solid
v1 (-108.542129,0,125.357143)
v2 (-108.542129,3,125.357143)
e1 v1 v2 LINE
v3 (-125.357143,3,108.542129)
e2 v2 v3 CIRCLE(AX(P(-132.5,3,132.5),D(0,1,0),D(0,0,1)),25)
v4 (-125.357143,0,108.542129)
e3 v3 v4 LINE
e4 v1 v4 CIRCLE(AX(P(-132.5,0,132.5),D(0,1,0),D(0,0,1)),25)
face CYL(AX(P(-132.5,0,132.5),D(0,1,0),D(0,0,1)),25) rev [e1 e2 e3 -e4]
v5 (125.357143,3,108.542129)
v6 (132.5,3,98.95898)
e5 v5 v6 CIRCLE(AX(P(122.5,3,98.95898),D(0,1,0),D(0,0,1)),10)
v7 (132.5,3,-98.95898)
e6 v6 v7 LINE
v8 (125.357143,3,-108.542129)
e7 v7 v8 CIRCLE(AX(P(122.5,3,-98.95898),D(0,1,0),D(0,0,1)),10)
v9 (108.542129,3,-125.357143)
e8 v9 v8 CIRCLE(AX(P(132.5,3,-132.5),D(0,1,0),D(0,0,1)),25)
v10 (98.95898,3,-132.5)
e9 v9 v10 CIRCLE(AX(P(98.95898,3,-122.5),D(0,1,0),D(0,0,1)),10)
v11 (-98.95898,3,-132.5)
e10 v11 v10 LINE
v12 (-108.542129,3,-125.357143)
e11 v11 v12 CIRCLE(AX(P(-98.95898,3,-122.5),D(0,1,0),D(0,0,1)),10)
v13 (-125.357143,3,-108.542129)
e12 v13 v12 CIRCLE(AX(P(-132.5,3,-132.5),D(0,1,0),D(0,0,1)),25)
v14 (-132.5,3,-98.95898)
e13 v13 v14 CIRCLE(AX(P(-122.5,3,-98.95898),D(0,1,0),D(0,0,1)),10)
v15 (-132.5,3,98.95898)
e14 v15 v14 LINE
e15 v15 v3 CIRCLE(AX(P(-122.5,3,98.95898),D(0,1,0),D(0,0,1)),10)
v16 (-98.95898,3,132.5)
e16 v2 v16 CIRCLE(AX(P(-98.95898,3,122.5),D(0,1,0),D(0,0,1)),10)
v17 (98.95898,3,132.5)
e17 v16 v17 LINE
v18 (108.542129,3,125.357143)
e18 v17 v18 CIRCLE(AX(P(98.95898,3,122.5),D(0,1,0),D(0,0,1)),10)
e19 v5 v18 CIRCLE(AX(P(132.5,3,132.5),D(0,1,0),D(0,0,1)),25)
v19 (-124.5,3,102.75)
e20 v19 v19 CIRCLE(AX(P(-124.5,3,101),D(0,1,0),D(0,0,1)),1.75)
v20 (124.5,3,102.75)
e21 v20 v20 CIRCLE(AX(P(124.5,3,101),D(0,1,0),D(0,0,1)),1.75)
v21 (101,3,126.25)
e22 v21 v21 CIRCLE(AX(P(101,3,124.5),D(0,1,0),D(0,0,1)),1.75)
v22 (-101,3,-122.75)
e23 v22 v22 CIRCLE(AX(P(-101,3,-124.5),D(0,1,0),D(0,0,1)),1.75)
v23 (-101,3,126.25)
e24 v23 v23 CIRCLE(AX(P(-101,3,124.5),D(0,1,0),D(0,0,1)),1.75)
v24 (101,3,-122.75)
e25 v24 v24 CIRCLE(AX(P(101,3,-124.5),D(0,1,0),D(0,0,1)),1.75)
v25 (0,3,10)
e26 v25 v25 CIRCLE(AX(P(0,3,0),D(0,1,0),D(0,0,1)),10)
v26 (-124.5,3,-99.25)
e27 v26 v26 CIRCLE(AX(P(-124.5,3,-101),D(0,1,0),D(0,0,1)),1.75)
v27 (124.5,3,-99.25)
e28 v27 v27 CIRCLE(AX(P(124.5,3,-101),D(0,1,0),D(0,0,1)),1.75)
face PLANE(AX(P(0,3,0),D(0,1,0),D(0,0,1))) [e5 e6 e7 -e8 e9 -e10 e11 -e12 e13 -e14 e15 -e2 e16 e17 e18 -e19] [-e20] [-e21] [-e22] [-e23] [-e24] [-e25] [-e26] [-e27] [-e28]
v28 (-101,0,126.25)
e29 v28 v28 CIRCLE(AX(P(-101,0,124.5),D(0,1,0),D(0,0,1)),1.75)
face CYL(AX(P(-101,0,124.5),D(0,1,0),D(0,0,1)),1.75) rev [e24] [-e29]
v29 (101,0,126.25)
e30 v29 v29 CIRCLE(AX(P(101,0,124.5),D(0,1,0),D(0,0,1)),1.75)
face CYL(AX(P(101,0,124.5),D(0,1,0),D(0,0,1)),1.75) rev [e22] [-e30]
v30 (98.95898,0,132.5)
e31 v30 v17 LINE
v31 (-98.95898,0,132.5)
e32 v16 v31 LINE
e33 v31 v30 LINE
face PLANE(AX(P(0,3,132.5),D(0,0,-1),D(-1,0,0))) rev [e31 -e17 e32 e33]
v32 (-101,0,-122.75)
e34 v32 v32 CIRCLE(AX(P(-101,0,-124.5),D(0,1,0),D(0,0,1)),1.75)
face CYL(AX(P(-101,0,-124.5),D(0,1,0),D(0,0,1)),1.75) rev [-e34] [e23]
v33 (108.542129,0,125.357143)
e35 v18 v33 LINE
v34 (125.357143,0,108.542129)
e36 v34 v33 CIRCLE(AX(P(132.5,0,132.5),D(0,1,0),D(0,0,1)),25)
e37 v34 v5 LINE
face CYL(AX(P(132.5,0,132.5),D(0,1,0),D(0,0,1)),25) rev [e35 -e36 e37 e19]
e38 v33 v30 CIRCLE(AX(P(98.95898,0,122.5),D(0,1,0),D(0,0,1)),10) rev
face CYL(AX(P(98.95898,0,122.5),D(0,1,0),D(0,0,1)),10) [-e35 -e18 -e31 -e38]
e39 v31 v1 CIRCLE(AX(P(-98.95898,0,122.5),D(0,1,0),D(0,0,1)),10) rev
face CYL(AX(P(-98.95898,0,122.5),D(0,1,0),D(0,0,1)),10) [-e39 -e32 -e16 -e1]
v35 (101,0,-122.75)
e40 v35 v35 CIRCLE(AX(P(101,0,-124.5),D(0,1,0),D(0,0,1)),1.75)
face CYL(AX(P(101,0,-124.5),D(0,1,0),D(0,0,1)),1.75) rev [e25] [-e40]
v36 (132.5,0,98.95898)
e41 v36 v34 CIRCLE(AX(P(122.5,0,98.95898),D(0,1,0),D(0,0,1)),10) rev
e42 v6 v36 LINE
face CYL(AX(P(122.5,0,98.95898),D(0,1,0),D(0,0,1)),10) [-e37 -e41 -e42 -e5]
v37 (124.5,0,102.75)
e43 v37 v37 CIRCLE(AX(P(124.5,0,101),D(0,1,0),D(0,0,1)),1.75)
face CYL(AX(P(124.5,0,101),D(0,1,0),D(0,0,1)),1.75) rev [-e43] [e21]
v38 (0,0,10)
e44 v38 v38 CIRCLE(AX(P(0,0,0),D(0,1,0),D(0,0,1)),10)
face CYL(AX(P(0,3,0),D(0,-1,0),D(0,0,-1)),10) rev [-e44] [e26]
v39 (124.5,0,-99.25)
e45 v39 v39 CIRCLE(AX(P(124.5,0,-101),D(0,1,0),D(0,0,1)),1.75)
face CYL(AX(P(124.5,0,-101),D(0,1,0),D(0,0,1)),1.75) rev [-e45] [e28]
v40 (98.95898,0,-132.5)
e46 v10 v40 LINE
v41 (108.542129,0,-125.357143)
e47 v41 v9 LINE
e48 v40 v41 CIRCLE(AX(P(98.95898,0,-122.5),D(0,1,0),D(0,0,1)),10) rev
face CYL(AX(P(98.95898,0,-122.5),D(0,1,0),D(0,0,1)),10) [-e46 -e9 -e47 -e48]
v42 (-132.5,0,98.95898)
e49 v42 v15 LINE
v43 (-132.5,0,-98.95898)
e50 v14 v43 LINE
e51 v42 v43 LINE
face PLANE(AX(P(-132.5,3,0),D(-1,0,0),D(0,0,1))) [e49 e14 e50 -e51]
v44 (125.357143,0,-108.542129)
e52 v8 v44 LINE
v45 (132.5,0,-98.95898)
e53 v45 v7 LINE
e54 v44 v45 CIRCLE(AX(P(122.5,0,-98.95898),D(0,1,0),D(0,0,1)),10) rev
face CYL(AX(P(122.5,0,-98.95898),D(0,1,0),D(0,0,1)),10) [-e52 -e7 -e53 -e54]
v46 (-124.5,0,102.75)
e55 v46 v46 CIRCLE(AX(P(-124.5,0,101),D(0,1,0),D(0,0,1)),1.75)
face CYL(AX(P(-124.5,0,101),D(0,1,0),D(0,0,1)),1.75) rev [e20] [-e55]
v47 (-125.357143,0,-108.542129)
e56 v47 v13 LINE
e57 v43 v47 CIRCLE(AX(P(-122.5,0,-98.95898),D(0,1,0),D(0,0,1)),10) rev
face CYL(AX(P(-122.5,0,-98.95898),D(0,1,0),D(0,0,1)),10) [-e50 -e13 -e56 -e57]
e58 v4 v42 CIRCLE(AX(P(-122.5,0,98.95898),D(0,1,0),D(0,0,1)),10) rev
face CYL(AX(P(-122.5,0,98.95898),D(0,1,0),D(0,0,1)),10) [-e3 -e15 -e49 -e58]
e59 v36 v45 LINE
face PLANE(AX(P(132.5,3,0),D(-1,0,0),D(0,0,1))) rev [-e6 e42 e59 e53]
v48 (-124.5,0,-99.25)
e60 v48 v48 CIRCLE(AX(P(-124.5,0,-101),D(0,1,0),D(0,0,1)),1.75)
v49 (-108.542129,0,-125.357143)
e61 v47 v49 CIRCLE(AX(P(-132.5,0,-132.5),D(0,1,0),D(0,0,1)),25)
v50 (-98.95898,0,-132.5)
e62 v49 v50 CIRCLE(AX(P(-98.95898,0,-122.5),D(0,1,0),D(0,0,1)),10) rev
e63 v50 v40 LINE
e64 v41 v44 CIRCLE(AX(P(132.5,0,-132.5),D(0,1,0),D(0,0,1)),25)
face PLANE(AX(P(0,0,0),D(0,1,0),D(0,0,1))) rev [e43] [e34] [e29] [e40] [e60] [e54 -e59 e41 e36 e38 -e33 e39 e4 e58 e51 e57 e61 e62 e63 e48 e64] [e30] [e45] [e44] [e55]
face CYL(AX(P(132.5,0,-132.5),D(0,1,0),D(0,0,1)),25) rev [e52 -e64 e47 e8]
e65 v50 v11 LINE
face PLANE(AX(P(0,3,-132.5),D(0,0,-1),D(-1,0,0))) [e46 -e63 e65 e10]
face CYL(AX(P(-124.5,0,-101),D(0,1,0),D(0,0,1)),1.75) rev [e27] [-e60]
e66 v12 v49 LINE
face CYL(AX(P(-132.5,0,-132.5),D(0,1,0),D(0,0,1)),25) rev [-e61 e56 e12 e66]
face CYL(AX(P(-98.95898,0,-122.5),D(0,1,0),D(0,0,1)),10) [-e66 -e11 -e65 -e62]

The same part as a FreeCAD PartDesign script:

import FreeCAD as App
import Part
import Sketcher

V = App.Vector
Q = App.Units.Quantity


def edges_at(feature, points):
    """Names of the edges that pass closest to the given points."""
    edges = feature.Shape.Edges
    near = lambda p: min(range(len(edges)), key=lambda i: edges[i].distToShape(Part.Vertex(*p))[0])
    return sorted({f"Edge{near(p) + 1}" for p in points})


def add_polygon(sketch, points):
    """Adds a closed chain of lines whose ends are joined by coincident constraints."""
    first, n = sketch.GeometryCount, len(points)
    for a, b in zip(points, points[1:] + points[:1]):
        sketch.addGeometry(Part.LineSegment(App.Vector(*a, 0), App.Vector(*b, 0)), False)
    for i in range(n):
        sketch.addConstraint(Sketcher.Constraint("Coincident", first + i, 2, first + (i + 1) % n, 1))

doc = App.newDocument("Part")
params = doc.addObject("Spreadsheet::Sheet", "Params")
for row, (alias, value) in enumerate([
    ("sketch1_diameter", "20 mm"),
    ("sketch1_width", "265 mm"),
    ("pad1_length", "3 mm"),
    ("sketch2_diameter", "50 mm"),
    ("sketch2_diameter2", "3.5 mm"),
    ("fillet_radius", "10 mm"),
], start=1):
    params.set(f"A{row}", alias)
    params.set(f"B{row}", "=" + value)
    params.setAlias(f"B{row}", alias)

body = doc.addObject("PartDesign::Body", "Body")

sketch1 = body.newObject("Sketcher::SketchObject", "Sketch")
sketch1.AttachmentSupport = (doc.getObject("XZ_Plane"), [""])
sketch1.MapMode = "FlatFace"
add_polygon(sketch1, [(-132.5, -132.5), (-132.5, 132.5), (132.5, 132.5), (132.5, -132.5)])
sketch1.addGeometry(Part.Circle(V(0, 0, 0), V(0, 0, 1), 10), False)
sketch1.addConstraint(Sketcher.Constraint("Vertical", 0))
sketch1.addConstraint(Sketcher.Constraint("Horizontal", 1))
sketch1.addConstraint(Sketcher.Constraint("Vertical", 2))
sketch1.addConstraint(Sketcher.Constraint("Horizontal", 3))
sketch1.addConstraint(Sketcher.Constraint("Coincident", 4, 3, -1, 1))
sketch1.addConstraint(Sketcher.Constraint("Symmetric", 0, 2, 2, 2, -1, 1))
sketch1.addConstraint(Sketcher.Constraint("Equal", 3, 0))
sketch1.addConstraint(Sketcher.Constraint("Diameter", 4, Q("20 mm")))
sketch1.addConstraint(Sketcher.Constraint("DistanceX", 1, 1, 1, 2, Q("265 mm")))
sketch1.setExpression("Constraints[11]", "Params.sketch1_diameter")
sketch1.setExpression("Constraints[12]", "Params.sketch1_width")
pad1 = body.newObject("PartDesign::Pad", "Pad")
pad1.Profile = sketch1
pad1.setExpression("Length", "Params.pad1_length")
pad1.Reversed = True

sketch2 = body.newObject("Sketcher::SketchObject", "Sketch001")
sketch2.AttachmentSupport = (doc.getObject("XZ_Plane"), [""])
sketch2.MapMode = "FlatFace"
sketch2.AttachmentOffset = App.Placement(V(0, 0, -3), App.Rotation())
sketch2.addGeometry(Part.Circle(V(-132.5, 132.5, 0), V(0, 0, 1), 25), False)
sketch2.addGeometry(Part.Circle(V(-132.5, -132.5, 0), V(0, 0, 1), 25), False)
sketch2.addGeometry(Part.Circle(V(-124.5, -101, 0), V(0, 0, 1), 1.75), False)
sketch2.addGeometry(Part.Circle(V(-101, -124.5, 0), V(0, 0, 1), 1.75), False)
sketch2.addGeometry(Part.Circle(V(-124.5, 101, 0), V(0, 0, 1), 1.75), False)
sketch2.addGeometry(Part.Circle(V(-101, 124.5, 0), V(0, 0, 1), 1.75), False)
sketch2.addGeometry(Part.Circle(V(132.5, -132.5, 0), V(0, 0, 1), 25), False)
sketch2.addGeometry(Part.Circle(V(101, -124.5, 0), V(0, 0, 1), 1.75), False)
sketch2.addGeometry(Part.Circle(V(124.5, -101, 0), V(0, 0, 1), 1.75), False)
sketch2.addGeometry(Part.Circle(V(132.5, 132.5, 0), V(0, 0, 1), 25), False)
sketch2.addGeometry(Part.Circle(V(124.5, 101, 0), V(0, 0, 1), 1.75), False)
sketch2.addGeometry(Part.Circle(V(101, 124.5, 0), V(0, 0, 1), 1.75), False)
sketch2.addConstraint(Sketcher.Constraint("Equal", 0, 1))
sketch2.addConstraint(Sketcher.Constraint("Equal", 2, 3))
sketch2.addConstraint(Sketcher.Constraint("Equal", 3, 4))
sketch2.addConstraint(Sketcher.Constraint("Equal", 4, 5))
sketch2.addConstraint(Sketcher.Constraint("Equal", 1, 6))
sketch2.addConstraint(Sketcher.Constraint("Equal", 5, 7))
sketch2.addConstraint(Sketcher.Constraint("Equal", 7, 8))
sketch2.addConstraint(Sketcher.Constraint("Equal", 6, 9))
sketch2.addConstraint(Sketcher.Constraint("Equal", 8, 10))
sketch2.addConstraint(Sketcher.Constraint("Equal", 10, 11))
sketch2.addConstraint(Sketcher.Constraint("Symmetric", 0, 3, 6, 3, -1, 1))
sketch2.addConstraint(Sketcher.Constraint("Symmetric", 5, 3, 7, 3, -1, 1))
sketch2.addConstraint(Sketcher.Constraint("Symmetric", 4, 3, 8, 3, -1, 1))
sketch2.addConstraint(Sketcher.Constraint("Symmetric", 1, 3, 9, 3, -1, 1))
sketch2.addConstraint(Sketcher.Constraint("Symmetric", 2, 3, 10, 3, -1, 1))
sketch2.addConstraint(Sketcher.Constraint("Symmetric", 3, 3, 11, 3, -1, 1))
sketch2.addConstraint(Sketcher.Constraint("Symmetric", 1, 3, 6, 3, -2))
sketch2.addConstraint(Sketcher.Constraint("Symmetric", 3, 3, 7, 3, -2))
sketch2.addConstraint(Sketcher.Constraint("Symmetric", 2, 3, 8, 3, -2))
sketch2.addConstraint(Sketcher.Constraint("Diameter", 0, Q("50 mm")))
sketch2.addConstraint(Sketcher.Constraint("Diameter", 2, Q("3.5 mm")))
sketch2.addConstraint(Sketcher.Constraint("DistanceY", 2, 3, -1, 1, Q("101 mm")))
sketch2.addConstraint(Sketcher.Constraint("DistanceX", 3, 3, -1, 1, Q("101 mm")))
sketch2.addConstraint(Sketcher.Constraint("DistanceY", 1, 3, 0, 3, Q("265 mm")))
sketch2.addConstraint(Sketcher.Constraint("DistanceX", 1, 3, 2, 3, Q("8 mm")))
sketch2.addConstraint(Sketcher.Constraint("DistanceY", 1, 3, 3, 3, Q("8 mm")))
sketch2.addConstraint(Sketcher.Constraint("DistanceX", 2, 3, 6, 3, Q("257 mm")))
sketch2.setExpression("Constraints[19]", "Params.sketch2_diameter")
sketch2.setExpression("Constraints[20]", "Params.sketch2_diameter2")
pocket1 = body.newObject("PartDesign::Pocket", "Pocket")
pocket1.Profile = sketch2
pocket1.Type = "ThroughAll"
pocket1.Midplane = True
doc.recompute()

fillet = body.newObject("PartDesign::Fillet", "Fillet")
fillet.Base = (pocket1, edges_at(pocket1, [
    (132.5, 1.5, -107.5),
    (107.5, 1.5, -132.5),
    (-107.5, 1.5, -132.5),
    (-132.5, 1.5, -107.5),
    (107.5, 1.5, 132.5),
    (132.5, 1.5, 107.5),
    (-107.5, 1.5, 132.5),
    (-132.5, 1.5, 107.5),
]))
fillet.setExpression("Radius", "Params.fillet_radius")

doc.recompute()
